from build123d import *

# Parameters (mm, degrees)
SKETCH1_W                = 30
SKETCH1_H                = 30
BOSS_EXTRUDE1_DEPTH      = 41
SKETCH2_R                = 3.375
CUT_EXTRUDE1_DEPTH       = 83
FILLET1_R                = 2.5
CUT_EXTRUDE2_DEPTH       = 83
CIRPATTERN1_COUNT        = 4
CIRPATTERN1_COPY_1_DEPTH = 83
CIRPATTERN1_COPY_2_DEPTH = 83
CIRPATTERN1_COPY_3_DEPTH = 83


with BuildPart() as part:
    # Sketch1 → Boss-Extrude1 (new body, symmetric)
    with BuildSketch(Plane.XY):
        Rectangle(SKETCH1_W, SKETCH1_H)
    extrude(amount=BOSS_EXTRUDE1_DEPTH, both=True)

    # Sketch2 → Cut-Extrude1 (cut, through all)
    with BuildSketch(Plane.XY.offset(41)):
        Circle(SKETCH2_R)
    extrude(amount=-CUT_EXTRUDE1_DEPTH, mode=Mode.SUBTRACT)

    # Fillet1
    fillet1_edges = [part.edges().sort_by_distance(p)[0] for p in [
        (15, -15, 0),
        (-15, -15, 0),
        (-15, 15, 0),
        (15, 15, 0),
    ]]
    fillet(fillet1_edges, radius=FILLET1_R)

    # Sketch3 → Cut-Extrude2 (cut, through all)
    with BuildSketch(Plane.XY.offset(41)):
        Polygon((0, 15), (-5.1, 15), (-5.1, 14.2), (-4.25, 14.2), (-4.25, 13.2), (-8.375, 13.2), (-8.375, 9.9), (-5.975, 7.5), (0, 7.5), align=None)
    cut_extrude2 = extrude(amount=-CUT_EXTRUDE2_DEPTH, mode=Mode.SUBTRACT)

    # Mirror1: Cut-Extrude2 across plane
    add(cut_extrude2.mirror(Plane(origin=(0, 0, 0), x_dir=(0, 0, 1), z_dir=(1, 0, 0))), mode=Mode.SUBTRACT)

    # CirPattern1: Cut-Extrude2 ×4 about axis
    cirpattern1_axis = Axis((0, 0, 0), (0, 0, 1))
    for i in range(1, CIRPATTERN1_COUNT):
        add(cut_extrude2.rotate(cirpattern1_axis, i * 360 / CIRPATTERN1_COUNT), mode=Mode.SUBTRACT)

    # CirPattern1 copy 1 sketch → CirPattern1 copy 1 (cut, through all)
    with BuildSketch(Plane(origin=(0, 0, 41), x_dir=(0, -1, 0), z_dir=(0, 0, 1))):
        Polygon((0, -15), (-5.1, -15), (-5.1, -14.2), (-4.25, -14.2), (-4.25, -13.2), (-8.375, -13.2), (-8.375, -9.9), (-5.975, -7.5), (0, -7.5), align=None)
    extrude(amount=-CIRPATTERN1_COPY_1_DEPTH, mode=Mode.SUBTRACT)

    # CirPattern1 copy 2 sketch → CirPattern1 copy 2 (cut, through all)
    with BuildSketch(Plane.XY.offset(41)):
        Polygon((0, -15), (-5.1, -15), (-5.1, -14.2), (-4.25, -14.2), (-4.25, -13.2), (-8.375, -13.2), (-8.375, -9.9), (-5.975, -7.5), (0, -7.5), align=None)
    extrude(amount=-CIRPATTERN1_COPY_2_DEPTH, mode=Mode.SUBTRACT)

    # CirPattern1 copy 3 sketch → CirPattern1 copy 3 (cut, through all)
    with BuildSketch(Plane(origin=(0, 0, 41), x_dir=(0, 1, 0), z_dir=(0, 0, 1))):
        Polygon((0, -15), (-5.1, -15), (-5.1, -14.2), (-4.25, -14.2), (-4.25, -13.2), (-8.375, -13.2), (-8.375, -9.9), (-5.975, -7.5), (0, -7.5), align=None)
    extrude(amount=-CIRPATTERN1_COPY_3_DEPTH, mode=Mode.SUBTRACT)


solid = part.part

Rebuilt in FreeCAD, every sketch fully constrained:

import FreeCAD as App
import Part
import Sketcher
Q = App.Units.Quantity


def edges_at(feature, points):
    """Names of the edges that pass closest to the given points."""
    edges = feature.Shape.Edges
    near = lambda p: min(range(len(edges)), key=lambda i: edges[i].distToShape(Part.Vertex(*p))[0])
    return sorted({f"Edge{near(p) + 1}" for p in points})


def add_polygon(sketch, points):
    """Adds a closed chain of lines whose ends are joined by coincident constraints."""
    first, n = sketch.GeometryCount, len(points)
    for a, b in zip(points, points[1:] + points[:1]):
        sketch.addGeometry(Part.LineSegment(App.Vector(*a, 0), App.Vector(*b, 0)), False)
    for i in range(n):
        sketch.addConstraint(Sketcher.Constraint("Coincident", first + i, 2, first + (i + 1) % n, 1))

doc = App.newDocument("Part")
body = doc.addObject("PartDesign::Body", "Body")

# Sketch on XY plane
sketch1 = doc.addObject("Sketcher::SketchObject", "Sketch")
body.addObject(sketch1)
sketch1.AttachmentSupport = (doc.XY_Plane, [""])
sketch1.MapMode = "FlatFace"
add_polygon(sketch1, [(-15, 15), (-15, -15), (15, -15), (15, 15)])  # lines 0-3
sketch1.addConstraint(Sketcher.Constraint("Vertical", 0))
sketch1.addConstraint(Sketcher.Constraint("Horizontal", 1))
sketch1.addConstraint(Sketcher.Constraint("Vertical", 2))
sketch1.addConstraint(Sketcher.Constraint("Horizontal", 3))
sketch1.addConstraint(Sketcher.Constraint("Symmetric", 0, 2, 2, 2, -1, 1))
sketch1.addConstraint(Sketcher.Constraint("Equal", 3, 0))
sketch1.addConstraint(Sketcher.Constraint("DistanceX", 1, 1, 1, 2, Q("30 mm")))
pad1 = doc.addObject("PartDesign::Pad", "Pad")
body.addObject(pad1)
pad1.Profile = sketch1
pad1.Length = 82
pad1.Midplane = True

# Sketch on XY plane
sketch2 = doc.addObject("Sketcher::SketchObject", "Sketch001")
body.addObject(sketch2)
sketch2.AttachmentSupport = (doc.XY_Plane, [""])
sketch2.MapMode = "FlatFace"
sketch2.AttachmentOffset = App.Placement(App.Vector(0, 0, 41), App.Rotation())
sketch2.addGeometry(Part.Circle(App.Vector(0, 0, 0), App.Vector(0, 0, 1), 3.4), False)
sketch2.addConstraint(Sketcher.Constraint("Coincident", 0, 3, -1, 1))
sketch2.addConstraint(Sketcher.Constraint("Diameter", 0, Q("6.75 mm")))
pocket1 = doc.addObject("PartDesign::Pocket", "Pocket")
body.addObject(pocket1)
pocket1.Profile = sketch2
pocket1.Type = "ThroughAll"
doc.recompute()

fillet = doc.addObject("PartDesign::Fillet", "Fillet")
body.addObject(fillet)
fillet.Base = (pocket1, edges_at(pocket1, [
    (15, -15, 0),
    (-15, -15, 0),
    (-15, 15, 0),
    (15, 15, 0),
]))
fillet.Radius = 2.5

# Sketch on XY plane
sketch3 = doc.addObject("Sketcher::SketchObject", "Sketch002")
body.addObject(sketch3)
sketch3.AttachmentSupport = (doc.XY_Plane, [""])
sketch3.MapMode = "FlatFace"
sketch3.AttachmentOffset = App.Placement(App.Vector(0, 0, 41), App.Rotation())
add_polygon(sketch3, [(0, 15), (-5.1, 15), (-5.1, 14.2), (-4.2, 14.2), (-4.2, 13.2), (-8.4, 13.2), (-8.4, 9.9), (-6, 7.5), (0, 7.5)])  # lines 0-8
sketch3.addConstraint(Sketcher.Constraint("Horizontal", 0))
sketch3.addConstraint(Sketcher.Constraint("Vertical", 1))
sketch3.addConstraint(Sketcher.Constraint("Horizontal", 2))
sketch3.addConstraint(Sketcher.Constraint("Vertical", 3))
sketch3.addConstraint(Sketcher.Constraint("Horizontal", 4))
sketch3.addConstraint(Sketcher.Constraint("Vertical", 5))
sketch3.addConstraint(Sketcher.Constraint("Horizontal", 7))
sketch3.addConstraint(Sketcher.Constraint("Vertical", 8))
sketch3.addConstraint(Sketcher.Constraint("PointOnObject", 7, 2, -2))
sketch3.addConstraint(Sketcher.Constraint("DistanceY", 3, 2, 3, 1, Q("1 mm")))
sketch3.addConstraint(Sketcher.Constraint("Angle", 6, Q("-45 deg")))
sketch3.addConstraint(Sketcher.Constraint("DistanceX", 0, 2, 0, 1, Q("5.1 mm")))
sketch3.addConstraint(Sketcher.Constraint("DistanceY", 1, 2, 1, 1, Q("0.8 mm")))
sketch3.addConstraint(Sketcher.Constraint("DistanceY", 5, 2, 5, 1, Q("3.3 mm")))
sketch3.addConstraint(Sketcher.Constraint("DistanceY", 8, 1, 8, 2, Q("7.5 mm")))
sketch3.addConstraint(Sketcher.Constraint("DistanceY", -1, 1, 0, 2, Q("15 mm")))
sketch3.addConstraint(Sketcher.Constraint("DistanceX", 2, 1, 2, 2, Q("0.85 mm")))
sketch3.addConstraint(Sketcher.Constraint("DistanceX", 4, 2, 4, 1, Q("4.125 mm")))
pocket2 = doc.addObject("PartDesign::Pocket", "Pocket001")
body.addObject(pocket2)
pocket2.Profile = sketch3
pocket2.Type = "ThroughAll"
doc.recompute()

mirrored = doc.addObject("PartDesign::Mirrored", "Mirrored")
body.addObject(mirrored)
mirrored.Originals = [pocket2]
mirrored.MirrorPlane = (doc.YZ_Plane, [""])
body.Tip = mirrored
doc.recompute()

polarpattern = doc.addObject("PartDesign::PolarPattern", "PolarPattern")
body.addObject(polarpattern)
polarpattern.Originals = [pocket2]
polarpattern.Axis = (doc.Z_Axis, [""])
polarpattern.Angle = 360
polarpattern.Occurrences = 4
body.Tip = polarpattern

# Sketch on XY plane
sketch4 = doc.addObject("Sketcher::SketchObject", "Sketch003")
body.addObject(sketch4)
sketch4.AttachmentSupport = (doc.XY_Plane, [""])
sketch4.MapMode = "FlatFace"
sketch4.AttachmentOffset = App.Placement(App.Vector(0, 0, 41), App.Rotation())
add_polygon(sketch4, [(-15, 5.1), (-15, 0), (-7.5, 0), (-7.5, 6), (-9.9, 8.4), (-13.2, 8.4), (-13.2, 4.2), (-14.2, 4.2), (-14.2, 5.1)])  # lines 0-8
sketch4.addConstraint(Sketcher.Constraint("Vertical", 0))
sketch4.addConstraint(Sketcher.Constraint("Horizontal", 1))
sketch4.addConstraint(Sketcher.Constraint("Vertical", 2))
sketch4.addConstraint(Sketcher.Constraint("Horizontal", 4))
sketch4.addConstraint(Sketcher.Constraint("Vertical", 5))
sketch4.addConstraint(Sketcher.Constraint("Horizontal", 6))
sketch4.addConstraint(Sketcher.Constraint("Vertical", 7))
sketch4.addConstraint(Sketcher.Constraint("Horizontal", 8))
sketch4.addConstraint(Sketcher.Constraint("PointOnObject", 0, 2, -1))
sketch4.addConstraint(Sketcher.Constraint("DistanceX", 6, 2, 6, 1, Q("1 mm")))
sketch4.addConstraint(Sketcher.Constraint("Angle", 3, Q("135 deg")))
sketch4.addConstraint(Sketcher.Constraint("DistanceX", 1, 1, 1, 2, Q("7.5 mm")))
sketch4.addConstraint(Sketcher.Constraint("DistanceX", 4, 2, 4, 1, Q("3.3 mm")))
sketch4.addConstraint(Sketcher.Constraint("DistanceX", 8, 2, 8, 1, Q("0.8 mm")))
sketch4.addConstraint(Sketcher.Constraint("DistanceY", 0, 2, 0, 1, Q("5.1 mm")))
sketch4.addConstraint(Sketcher.Constraint("DistanceX", 0, 2, -1, 1, Q("15 mm")))
sketch4.addConstraint(Sketcher.Constraint("DistanceY", 7, 1, 7, 2, Q("0.85 mm")))
sketch4.addConstraint(Sketcher.Constraint("DistanceY", 2, 1, 2, 2, Q("5.975 mm")))
pocket3 = doc.addObject("PartDesign::Pocket", "Pocket002")
body.addObject(pocket3)
pocket3.Profile = sketch4
pocket3.Type = "ThroughAll"

# Sketch on XY plane
sketch5 = doc.addObject("Sketcher::SketchObject", "Sketch004")
body.addObject(sketch5)
sketch5.AttachmentSupport = (doc.XY_Plane, [""])
sketch5.MapMode = "FlatFace"
sketch5.AttachmentOffset = App.Placement(App.Vector(0, 0, 41), App.Rotation())
add_polygon(sketch5, [(-5.1, -15), (0, -15), (0, -7.5), (-6, -7.5), (-8.4, -9.9), (-8.4, -13.2), (-4.2, -13.2), (-4.2, -14.2), (-5.1, -14.2)])  # lines 0-8
sketch5.addConstraint(Sketcher.Constraint("Horizontal", 0))
sketch5.addConstraint(Sketcher.Constraint("Vertical", 1))
sketch5.addConstraint(Sketcher.Constraint("Horizontal", 2))
sketch5.addConstraint(Sketcher.Constraint("Vertical", 4))
sketch5.addConstraint(Sketcher.Constraint("Horizontal", 5))
sketch5.addConstraint(Sketcher.Constraint("Vertical", 6))
sketch5.addConstraint(Sketcher.Constraint("Horizontal", 7))
sketch5.addConstraint(Sketcher.Constraint("Vertical", 8))
sketch5.addConstraint(Sketcher.Constraint("PointOnObject", 0, 2, -2))
sketch5.addConstraint(Sketcher.Constraint("DistanceY", 6, 2, 6, 1, Q("1 mm")))
sketch5.addConstraint(Sketcher.Constraint("Angle", 3, Q("-135 deg")))
sketch5.addConstraint(Sketcher.Constraint("DistanceX", 0, 1, 0, 2, Q("5.1 mm")))
sketch5.addConstraint(Sketcher.Constraint("DistanceY", 1, 1, 1, 2, Q("7.5 mm")))
sketch5.addConstraint(Sketcher.Constraint("DistanceY", 4, 2, 4, 1, Q("3.3 mm")))
sketch5.addConstraint(Sketcher.Constraint("DistanceY", 8, 2, 8, 1, Q("0.8 mm")))
sketch5.addConstraint(Sketcher.Constraint("DistanceY", 0, 2, -1, 1, Q("15 mm")))
sketch5.addConstraint(Sketcher.Constraint("DistanceX", 7, 2, 7, 1, Q("0.85 mm")))
sketch5.addConstraint(Sketcher.Constraint("DistanceX", 2, 2, 2, 1, Q("5.975 mm")))
pocket4 = doc.addObject("PartDesign::Pocket", "Pocket003")
body.addObject(pocket4)
pocket4.Profile = sketch5
pocket4.Type = "ThroughAll"

# Sketch on XY plane
sketch6 = doc.addObject("Sketcher::SketchObject", "Sketch005")
body.addObject(sketch6)
sketch6.AttachmentSupport = (doc.XY_Plane, [""])
sketch6.MapMode = "FlatFace"
sketch6.AttachmentOffset = App.Placement(App.Vector(0, 0, 41), App.Rotation())
add_polygon(sketch6, [(15, -5.1), (15, 0), (7.5, 0), (7.5, -6), (9.9, -8.4), (13.2, -8.4), (13.2, -4.2), (14.2, -4.2), (14.2, -5.1)])  # lines 0-8
sketch6.addConstraint(Sketcher.Constraint("Vertical", 0))
sketch6.addConstraint(Sketcher.Constraint("Horizontal", 1))
sketch6.addConstraint(Sketcher.Constraint("Vertical", 2))
sketch6.addConstraint(Sketcher.Constraint("Horizontal", 4))
sketch6.addConstraint(Sketcher.Constraint("Vertical", 5))
sketch6.addConstraint(Sketcher.Constraint("Horizontal", 6))
sketch6.addConstraint(Sketcher.Constraint("Vertical", 7))
sketch6.addConstraint(Sketcher.Constraint("Horizontal", 8))
sketch6.addConstraint(Sketcher.Constraint("PointOnObject", 0, 2, -1))
sketch6.addConstraint(Sketcher.Constraint("DistanceX", 6, 1, 6, 2, Q("1 mm")))
sketch6.addConstraint(Sketcher.Constraint("Angle", 3, Q("-45 deg")))
sketch6.addConstraint(Sketcher.Constraint("DistanceX", 1, 2, 1, 1, Q("7.5 mm")))
sketch6.addConstraint(Sketcher.Constraint("DistanceX", 4, 1, 4, 2, Q("3.3 mm")))
sketch6.addConstraint(Sketcher.Constraint("DistanceX", 8, 1, 8, 2, Q("0.8 mm")))
sketch6.addConstraint(Sketcher.Constraint("DistanceY", 0, 1, 0, 2, Q("5.1 mm")))
sketch6.addConstraint(Sketcher.Constraint("DistanceX", -1, 1, 0, 2, Q("15 mm")))
sketch6.addConstraint(Sketcher.Constraint("DistanceY", 7, 2, 7, 1, Q("0.85 mm")))
sketch6.addConstraint(Sketcher.Constraint("DistanceY", 2, 2, 2, 1, Q("5.975 mm")))
pocket5 = doc.addObject("PartDesign::Pocket", "Pocket004")
body.addObject(pocket5)
pocket5.Profile = sketch6
pocket5.Type = "ThroughAll"

doc.recompute()
